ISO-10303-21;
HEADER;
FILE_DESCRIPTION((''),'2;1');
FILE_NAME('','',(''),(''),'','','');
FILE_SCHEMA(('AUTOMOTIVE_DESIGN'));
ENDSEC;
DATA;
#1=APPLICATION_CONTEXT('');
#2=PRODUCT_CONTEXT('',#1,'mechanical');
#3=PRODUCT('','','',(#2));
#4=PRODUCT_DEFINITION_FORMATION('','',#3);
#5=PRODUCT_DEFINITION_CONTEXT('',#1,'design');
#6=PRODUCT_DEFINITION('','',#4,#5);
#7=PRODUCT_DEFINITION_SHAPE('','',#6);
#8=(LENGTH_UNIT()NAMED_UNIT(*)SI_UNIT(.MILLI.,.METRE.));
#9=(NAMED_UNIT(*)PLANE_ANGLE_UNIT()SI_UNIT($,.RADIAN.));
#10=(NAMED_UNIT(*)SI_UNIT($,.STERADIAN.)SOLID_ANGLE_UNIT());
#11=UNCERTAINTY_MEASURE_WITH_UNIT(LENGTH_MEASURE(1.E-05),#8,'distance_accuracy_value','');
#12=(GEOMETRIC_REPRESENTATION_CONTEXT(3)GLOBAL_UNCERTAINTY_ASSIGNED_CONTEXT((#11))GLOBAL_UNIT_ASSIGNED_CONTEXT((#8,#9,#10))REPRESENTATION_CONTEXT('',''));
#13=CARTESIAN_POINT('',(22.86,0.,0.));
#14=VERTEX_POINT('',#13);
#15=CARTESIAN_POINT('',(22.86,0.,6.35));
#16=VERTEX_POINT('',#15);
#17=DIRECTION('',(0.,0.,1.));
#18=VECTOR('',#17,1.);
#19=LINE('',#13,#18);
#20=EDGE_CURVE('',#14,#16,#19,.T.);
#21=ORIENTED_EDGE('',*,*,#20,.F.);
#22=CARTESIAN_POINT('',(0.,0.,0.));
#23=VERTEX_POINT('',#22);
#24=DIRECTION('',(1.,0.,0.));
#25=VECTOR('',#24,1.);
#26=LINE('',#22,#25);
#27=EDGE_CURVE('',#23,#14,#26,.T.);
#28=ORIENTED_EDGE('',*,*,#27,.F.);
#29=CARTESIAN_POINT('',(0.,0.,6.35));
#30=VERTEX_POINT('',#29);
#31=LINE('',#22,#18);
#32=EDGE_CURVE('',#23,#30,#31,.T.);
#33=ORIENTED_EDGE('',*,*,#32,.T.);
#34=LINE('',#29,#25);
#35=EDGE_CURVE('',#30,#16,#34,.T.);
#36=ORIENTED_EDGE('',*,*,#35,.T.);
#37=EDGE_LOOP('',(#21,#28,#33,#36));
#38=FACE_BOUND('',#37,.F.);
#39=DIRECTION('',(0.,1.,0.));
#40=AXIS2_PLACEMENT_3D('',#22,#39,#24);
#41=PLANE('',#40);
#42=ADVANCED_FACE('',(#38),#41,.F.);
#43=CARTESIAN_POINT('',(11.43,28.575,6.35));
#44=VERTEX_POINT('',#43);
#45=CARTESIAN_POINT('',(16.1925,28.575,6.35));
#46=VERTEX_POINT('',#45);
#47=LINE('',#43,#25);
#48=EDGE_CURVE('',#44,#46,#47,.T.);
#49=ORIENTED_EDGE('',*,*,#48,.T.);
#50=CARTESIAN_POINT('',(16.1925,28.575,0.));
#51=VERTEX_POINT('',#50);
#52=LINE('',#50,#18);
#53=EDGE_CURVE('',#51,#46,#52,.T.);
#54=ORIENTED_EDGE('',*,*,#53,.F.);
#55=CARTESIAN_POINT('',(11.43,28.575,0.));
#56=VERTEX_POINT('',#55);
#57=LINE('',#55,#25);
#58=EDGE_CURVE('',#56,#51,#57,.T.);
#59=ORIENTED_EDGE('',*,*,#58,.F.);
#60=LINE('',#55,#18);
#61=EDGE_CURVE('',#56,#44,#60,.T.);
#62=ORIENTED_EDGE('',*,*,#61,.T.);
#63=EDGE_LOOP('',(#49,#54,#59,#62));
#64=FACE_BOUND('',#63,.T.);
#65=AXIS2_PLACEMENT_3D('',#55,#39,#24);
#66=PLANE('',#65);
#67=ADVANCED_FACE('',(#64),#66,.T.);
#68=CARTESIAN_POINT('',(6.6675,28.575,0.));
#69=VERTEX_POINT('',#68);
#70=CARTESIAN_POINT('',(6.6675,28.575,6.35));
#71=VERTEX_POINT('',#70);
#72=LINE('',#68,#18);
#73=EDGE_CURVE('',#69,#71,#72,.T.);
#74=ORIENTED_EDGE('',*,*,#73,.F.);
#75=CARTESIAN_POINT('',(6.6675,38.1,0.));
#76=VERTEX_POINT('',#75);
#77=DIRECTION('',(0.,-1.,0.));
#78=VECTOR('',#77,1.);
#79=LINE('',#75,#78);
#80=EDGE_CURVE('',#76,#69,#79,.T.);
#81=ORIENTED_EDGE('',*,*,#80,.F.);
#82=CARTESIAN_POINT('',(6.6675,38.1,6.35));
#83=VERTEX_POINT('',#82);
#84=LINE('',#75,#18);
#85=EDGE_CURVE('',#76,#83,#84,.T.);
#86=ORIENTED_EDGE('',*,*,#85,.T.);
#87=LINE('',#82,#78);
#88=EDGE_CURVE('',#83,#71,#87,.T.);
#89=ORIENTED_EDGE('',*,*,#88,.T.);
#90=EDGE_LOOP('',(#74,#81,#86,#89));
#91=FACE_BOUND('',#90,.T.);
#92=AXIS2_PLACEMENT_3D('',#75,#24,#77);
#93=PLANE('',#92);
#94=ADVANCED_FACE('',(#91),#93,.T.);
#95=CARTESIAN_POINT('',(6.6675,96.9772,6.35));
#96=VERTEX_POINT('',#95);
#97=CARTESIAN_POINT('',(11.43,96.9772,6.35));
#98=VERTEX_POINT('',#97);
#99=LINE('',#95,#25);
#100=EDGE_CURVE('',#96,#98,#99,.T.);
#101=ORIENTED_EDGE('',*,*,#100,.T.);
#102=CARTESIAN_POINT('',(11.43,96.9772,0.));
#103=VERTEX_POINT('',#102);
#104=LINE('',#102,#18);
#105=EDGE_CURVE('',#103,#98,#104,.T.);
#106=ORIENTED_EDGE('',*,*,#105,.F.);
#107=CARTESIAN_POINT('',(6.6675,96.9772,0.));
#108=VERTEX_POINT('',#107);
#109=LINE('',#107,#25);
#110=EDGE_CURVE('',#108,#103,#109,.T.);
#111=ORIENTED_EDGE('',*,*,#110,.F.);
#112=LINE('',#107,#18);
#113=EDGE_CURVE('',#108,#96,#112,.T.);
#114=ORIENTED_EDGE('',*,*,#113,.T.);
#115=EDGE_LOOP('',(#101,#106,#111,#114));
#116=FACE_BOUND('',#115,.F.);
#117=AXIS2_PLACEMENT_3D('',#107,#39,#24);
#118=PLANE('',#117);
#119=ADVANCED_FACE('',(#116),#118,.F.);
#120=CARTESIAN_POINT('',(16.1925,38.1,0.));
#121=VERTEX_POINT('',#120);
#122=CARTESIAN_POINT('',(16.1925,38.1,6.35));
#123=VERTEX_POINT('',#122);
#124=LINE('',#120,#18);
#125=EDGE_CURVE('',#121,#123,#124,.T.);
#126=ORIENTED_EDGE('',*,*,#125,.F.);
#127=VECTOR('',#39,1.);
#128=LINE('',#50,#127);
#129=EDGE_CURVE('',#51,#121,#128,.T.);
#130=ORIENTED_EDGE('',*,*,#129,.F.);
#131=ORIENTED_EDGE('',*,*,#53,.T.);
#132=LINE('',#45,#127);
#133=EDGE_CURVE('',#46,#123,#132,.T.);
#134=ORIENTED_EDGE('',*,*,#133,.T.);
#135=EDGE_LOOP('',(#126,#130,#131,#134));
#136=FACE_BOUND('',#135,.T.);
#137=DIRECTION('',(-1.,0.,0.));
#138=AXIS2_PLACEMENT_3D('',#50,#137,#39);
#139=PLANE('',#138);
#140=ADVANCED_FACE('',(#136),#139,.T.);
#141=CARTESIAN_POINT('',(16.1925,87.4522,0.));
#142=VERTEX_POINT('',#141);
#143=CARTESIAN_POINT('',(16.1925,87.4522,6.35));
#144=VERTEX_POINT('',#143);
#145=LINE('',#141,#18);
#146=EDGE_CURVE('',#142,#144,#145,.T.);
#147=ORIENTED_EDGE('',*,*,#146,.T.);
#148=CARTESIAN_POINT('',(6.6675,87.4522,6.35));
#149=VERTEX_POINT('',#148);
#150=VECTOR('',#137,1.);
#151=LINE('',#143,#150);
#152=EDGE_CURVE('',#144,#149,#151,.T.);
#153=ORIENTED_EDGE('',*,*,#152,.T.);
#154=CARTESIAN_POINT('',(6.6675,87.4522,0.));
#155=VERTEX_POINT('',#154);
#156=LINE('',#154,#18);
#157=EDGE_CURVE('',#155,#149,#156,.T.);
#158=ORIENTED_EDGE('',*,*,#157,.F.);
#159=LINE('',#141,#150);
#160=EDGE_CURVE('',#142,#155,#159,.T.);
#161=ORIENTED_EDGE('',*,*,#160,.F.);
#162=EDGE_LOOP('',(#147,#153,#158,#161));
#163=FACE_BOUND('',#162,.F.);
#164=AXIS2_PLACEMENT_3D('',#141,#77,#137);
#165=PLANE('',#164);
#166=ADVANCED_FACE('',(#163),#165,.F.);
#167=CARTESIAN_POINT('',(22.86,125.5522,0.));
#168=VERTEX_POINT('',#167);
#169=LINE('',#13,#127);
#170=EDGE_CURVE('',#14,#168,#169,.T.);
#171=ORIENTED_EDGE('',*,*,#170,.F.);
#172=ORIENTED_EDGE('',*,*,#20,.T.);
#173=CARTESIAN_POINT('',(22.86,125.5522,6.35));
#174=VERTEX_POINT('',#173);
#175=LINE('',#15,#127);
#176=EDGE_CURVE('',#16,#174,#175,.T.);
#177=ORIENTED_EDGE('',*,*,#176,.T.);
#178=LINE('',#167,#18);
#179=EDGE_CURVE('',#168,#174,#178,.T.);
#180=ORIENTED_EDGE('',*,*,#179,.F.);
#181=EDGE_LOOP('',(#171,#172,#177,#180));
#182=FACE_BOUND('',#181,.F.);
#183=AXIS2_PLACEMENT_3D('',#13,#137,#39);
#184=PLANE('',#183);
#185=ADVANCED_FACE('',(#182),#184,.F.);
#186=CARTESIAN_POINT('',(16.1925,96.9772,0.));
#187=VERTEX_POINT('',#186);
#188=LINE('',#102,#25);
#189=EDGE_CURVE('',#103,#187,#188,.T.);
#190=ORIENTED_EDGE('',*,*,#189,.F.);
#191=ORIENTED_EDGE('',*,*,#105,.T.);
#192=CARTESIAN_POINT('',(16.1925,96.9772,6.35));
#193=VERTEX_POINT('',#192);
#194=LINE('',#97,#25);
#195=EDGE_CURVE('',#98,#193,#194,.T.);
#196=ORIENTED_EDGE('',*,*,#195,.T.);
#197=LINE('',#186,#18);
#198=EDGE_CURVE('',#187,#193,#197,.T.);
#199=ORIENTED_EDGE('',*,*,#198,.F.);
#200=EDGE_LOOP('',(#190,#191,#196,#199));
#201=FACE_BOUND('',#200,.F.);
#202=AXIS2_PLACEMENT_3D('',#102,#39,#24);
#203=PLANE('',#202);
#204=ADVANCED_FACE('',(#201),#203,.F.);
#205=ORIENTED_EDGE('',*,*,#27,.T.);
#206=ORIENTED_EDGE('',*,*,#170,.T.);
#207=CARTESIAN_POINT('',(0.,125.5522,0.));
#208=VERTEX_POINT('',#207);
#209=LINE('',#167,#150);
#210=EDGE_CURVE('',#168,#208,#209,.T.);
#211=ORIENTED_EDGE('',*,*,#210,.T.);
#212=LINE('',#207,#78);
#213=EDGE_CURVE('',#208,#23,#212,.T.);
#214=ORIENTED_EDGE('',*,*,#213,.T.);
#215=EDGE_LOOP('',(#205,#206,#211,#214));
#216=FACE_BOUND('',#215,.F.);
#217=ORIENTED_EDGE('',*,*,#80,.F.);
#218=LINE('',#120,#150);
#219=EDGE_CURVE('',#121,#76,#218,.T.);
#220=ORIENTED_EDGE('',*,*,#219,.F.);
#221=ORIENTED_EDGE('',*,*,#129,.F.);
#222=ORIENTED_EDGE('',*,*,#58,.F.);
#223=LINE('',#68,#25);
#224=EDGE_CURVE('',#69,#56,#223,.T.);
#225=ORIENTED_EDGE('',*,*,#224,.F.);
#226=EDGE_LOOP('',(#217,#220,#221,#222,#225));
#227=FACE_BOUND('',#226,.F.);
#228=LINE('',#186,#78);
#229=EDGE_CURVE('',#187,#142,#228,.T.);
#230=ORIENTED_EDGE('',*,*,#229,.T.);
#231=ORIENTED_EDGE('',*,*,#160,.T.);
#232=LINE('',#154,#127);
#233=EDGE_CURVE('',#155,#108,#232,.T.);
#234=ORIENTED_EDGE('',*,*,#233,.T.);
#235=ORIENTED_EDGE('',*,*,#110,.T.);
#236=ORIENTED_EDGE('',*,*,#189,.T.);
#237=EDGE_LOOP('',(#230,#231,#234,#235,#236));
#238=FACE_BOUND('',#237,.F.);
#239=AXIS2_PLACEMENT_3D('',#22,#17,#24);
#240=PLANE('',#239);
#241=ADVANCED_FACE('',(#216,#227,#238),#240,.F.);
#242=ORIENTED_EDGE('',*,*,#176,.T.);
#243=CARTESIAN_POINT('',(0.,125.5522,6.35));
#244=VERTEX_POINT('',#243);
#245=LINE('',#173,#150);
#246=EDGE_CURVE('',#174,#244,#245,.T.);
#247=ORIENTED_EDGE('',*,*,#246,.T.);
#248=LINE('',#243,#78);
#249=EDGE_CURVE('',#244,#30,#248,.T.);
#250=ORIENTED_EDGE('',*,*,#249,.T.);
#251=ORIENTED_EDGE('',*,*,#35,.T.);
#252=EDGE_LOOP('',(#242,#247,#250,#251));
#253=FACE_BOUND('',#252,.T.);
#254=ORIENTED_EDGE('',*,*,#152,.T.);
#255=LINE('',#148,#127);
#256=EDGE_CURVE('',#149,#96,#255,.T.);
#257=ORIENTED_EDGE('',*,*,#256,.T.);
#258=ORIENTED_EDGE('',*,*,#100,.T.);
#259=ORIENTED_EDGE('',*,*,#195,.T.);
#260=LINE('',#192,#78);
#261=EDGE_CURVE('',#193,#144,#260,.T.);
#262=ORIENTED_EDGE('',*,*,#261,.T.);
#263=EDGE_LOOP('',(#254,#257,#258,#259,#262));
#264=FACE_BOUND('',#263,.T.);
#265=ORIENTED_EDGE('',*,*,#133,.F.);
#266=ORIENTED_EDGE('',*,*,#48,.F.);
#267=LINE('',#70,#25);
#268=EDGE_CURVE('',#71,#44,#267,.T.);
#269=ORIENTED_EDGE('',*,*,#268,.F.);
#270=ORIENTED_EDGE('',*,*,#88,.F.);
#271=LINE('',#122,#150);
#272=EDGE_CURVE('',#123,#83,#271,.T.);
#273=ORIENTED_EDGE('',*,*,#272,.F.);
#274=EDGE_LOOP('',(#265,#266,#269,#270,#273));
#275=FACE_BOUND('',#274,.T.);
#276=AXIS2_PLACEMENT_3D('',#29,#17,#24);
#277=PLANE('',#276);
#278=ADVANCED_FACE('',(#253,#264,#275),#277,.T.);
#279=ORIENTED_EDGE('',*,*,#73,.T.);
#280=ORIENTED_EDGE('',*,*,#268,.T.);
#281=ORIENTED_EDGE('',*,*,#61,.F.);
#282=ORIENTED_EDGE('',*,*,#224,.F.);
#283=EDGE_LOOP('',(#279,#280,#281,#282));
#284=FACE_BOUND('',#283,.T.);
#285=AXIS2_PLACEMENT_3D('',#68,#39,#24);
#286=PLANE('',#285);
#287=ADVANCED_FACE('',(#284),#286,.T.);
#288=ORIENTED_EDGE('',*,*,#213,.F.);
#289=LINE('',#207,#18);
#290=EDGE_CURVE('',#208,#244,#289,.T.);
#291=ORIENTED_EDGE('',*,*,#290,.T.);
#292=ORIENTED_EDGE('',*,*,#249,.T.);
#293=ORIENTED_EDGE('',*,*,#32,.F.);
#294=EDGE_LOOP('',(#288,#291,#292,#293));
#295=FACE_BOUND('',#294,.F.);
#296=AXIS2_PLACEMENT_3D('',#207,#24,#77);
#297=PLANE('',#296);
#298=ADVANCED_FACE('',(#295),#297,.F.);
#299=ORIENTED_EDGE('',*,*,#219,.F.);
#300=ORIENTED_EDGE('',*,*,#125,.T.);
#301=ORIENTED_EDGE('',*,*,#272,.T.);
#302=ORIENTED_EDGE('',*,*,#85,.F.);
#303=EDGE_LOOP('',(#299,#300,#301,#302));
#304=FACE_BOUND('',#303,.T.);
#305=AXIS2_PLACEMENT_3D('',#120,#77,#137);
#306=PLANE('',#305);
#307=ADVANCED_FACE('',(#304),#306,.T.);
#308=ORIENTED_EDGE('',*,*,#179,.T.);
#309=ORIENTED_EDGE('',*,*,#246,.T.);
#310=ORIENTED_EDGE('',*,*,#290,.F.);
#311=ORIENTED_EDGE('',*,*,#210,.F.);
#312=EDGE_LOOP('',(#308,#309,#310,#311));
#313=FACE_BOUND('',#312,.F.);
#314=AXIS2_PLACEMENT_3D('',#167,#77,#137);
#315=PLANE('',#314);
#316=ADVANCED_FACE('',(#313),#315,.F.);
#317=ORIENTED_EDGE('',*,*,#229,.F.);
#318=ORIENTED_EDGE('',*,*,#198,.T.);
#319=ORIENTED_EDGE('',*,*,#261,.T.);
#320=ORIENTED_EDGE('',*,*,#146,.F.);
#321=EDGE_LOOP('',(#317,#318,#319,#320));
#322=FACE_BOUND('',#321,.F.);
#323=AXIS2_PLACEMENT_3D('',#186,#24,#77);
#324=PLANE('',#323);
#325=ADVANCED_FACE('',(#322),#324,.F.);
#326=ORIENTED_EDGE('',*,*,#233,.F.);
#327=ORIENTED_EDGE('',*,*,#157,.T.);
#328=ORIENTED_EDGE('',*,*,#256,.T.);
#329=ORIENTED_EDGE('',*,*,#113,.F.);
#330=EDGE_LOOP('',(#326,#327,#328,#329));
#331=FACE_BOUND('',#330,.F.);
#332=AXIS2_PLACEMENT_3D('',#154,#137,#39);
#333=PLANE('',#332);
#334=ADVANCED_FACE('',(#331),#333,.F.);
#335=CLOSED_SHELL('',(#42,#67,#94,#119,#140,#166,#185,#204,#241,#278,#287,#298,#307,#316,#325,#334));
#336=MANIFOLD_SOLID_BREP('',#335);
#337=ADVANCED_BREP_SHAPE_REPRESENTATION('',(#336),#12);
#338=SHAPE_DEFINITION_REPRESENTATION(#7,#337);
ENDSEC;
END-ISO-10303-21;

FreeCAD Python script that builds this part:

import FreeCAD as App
import Part
import Sketcher
from FreeCAD import Vector
Q = App.Units.Quantity


def add_polygon(sketch, points):
    """Adds a closed chain of lines whose ends are joined by coincident constraints."""
    first, n = sketch.GeometryCount, len(points)
    for a, b in zip(points, points[1:] + points[:1]):
        sketch.addGeometry(Part.LineSegment(App.Vector(*a, 0), App.Vector(*b, 0)), False)
    for i in range(n):
        sketch.addConstraint(Sketcher.Constraint("Coincident", first + i, 2, first + (i + 1) % n, 1))

doc = App.newDocument("Part")
body = doc.addObject("PartDesign::Body", "Body")

sketch1 = body.newObject("Sketcher::SketchObject", "Sketch")
sketch1.AttachmentSupport = (doc.getObject("XY_Plane"), [""])
sketch1.MapMode = "FlatFace"
add_polygon(sketch1, [(0, 126), (0, 0), (23, 0), (23, 126)])
add_polygon(sketch1, [(16, 29), (7, 29), (7, 38), (16, 38)])
add_polygon(sketch1, [(7, 97), (16, 97), (16, 87), (7, 87)])
sketch1.addConstraint(Sketcher.Constraint("Vertical", 0))
sketch1.addConstraint(Sketcher.Constraint("Horizontal", 1))
sketch1.addConstraint(Sketcher.Constraint("Vertical", 2))
sketch1.addConstraint(Sketcher.Constraint("Horizontal", 3))
sketch1.addConstraint(Sketcher.Constraint("Horizontal", 4))
sketch1.addConstraint(Sketcher.Constraint("Vertical", 5))
sketch1.addConstraint(Sketcher.Constraint("Horizontal", 6))
sketch1.addConstraint(Sketcher.Constraint("Vertical", 7))
sketch1.addConstraint(Sketcher.Constraint("Horizontal", 8))
sketch1.addConstraint(Sketcher.Constraint("Vertical", 9))
sketch1.addConstraint(Sketcher.Constraint("Horizontal", 10))
sketch1.addConstraint(Sketcher.Constraint("Vertical", 11))
sketch1.addConstraint(Sketcher.Constraint("Coincident", 0, 2, -1, 1))
sketch1.addConstraint(Sketcher.Constraint("Vertical", 7, 2, 8, 2))
sketch1.addConstraint(Sketcher.Constraint("Vertical", 5, 2, 10, 2))
sketch1.addConstraint(Sketcher.Constraint("Equal", 10, 5))
sketch1.addConstraint(Sketcher.Constraint("Equal", 7, 9))
sketch1.addConstraint(Sketcher.Constraint("DistanceX", 1, 1, 1, 2, Q("0.9 in")))
sketch1.addConstraint(Sketcher.Constraint("DistanceX", 4, 2, 4, 1, Q("0.375 in")))
sketch1.addConstraint(Sketcher.Constraint("DistanceY", 0, 2, 0, 1, Q("4.943 in")))
sketch1.addConstraint(Sketcher.Constraint("DistanceY", -1, 1, 4, 2, Q("1.125 in")))
sketch1.addConstraint(Sketcher.Constraint("DistanceY", 8, 2, 2, 2, Q("1.125 in")))
sketch1.addConstraint(Sketcher.Constraint("DistanceX", -1, 1, 4, 2, Q("0.2625 in")))
pad1 = body.newObject("PartDesign::Pad", "Pad")
pad1.Profile = sketch1
pad1.Length = Q("0.25 in")

doc.recompute()
